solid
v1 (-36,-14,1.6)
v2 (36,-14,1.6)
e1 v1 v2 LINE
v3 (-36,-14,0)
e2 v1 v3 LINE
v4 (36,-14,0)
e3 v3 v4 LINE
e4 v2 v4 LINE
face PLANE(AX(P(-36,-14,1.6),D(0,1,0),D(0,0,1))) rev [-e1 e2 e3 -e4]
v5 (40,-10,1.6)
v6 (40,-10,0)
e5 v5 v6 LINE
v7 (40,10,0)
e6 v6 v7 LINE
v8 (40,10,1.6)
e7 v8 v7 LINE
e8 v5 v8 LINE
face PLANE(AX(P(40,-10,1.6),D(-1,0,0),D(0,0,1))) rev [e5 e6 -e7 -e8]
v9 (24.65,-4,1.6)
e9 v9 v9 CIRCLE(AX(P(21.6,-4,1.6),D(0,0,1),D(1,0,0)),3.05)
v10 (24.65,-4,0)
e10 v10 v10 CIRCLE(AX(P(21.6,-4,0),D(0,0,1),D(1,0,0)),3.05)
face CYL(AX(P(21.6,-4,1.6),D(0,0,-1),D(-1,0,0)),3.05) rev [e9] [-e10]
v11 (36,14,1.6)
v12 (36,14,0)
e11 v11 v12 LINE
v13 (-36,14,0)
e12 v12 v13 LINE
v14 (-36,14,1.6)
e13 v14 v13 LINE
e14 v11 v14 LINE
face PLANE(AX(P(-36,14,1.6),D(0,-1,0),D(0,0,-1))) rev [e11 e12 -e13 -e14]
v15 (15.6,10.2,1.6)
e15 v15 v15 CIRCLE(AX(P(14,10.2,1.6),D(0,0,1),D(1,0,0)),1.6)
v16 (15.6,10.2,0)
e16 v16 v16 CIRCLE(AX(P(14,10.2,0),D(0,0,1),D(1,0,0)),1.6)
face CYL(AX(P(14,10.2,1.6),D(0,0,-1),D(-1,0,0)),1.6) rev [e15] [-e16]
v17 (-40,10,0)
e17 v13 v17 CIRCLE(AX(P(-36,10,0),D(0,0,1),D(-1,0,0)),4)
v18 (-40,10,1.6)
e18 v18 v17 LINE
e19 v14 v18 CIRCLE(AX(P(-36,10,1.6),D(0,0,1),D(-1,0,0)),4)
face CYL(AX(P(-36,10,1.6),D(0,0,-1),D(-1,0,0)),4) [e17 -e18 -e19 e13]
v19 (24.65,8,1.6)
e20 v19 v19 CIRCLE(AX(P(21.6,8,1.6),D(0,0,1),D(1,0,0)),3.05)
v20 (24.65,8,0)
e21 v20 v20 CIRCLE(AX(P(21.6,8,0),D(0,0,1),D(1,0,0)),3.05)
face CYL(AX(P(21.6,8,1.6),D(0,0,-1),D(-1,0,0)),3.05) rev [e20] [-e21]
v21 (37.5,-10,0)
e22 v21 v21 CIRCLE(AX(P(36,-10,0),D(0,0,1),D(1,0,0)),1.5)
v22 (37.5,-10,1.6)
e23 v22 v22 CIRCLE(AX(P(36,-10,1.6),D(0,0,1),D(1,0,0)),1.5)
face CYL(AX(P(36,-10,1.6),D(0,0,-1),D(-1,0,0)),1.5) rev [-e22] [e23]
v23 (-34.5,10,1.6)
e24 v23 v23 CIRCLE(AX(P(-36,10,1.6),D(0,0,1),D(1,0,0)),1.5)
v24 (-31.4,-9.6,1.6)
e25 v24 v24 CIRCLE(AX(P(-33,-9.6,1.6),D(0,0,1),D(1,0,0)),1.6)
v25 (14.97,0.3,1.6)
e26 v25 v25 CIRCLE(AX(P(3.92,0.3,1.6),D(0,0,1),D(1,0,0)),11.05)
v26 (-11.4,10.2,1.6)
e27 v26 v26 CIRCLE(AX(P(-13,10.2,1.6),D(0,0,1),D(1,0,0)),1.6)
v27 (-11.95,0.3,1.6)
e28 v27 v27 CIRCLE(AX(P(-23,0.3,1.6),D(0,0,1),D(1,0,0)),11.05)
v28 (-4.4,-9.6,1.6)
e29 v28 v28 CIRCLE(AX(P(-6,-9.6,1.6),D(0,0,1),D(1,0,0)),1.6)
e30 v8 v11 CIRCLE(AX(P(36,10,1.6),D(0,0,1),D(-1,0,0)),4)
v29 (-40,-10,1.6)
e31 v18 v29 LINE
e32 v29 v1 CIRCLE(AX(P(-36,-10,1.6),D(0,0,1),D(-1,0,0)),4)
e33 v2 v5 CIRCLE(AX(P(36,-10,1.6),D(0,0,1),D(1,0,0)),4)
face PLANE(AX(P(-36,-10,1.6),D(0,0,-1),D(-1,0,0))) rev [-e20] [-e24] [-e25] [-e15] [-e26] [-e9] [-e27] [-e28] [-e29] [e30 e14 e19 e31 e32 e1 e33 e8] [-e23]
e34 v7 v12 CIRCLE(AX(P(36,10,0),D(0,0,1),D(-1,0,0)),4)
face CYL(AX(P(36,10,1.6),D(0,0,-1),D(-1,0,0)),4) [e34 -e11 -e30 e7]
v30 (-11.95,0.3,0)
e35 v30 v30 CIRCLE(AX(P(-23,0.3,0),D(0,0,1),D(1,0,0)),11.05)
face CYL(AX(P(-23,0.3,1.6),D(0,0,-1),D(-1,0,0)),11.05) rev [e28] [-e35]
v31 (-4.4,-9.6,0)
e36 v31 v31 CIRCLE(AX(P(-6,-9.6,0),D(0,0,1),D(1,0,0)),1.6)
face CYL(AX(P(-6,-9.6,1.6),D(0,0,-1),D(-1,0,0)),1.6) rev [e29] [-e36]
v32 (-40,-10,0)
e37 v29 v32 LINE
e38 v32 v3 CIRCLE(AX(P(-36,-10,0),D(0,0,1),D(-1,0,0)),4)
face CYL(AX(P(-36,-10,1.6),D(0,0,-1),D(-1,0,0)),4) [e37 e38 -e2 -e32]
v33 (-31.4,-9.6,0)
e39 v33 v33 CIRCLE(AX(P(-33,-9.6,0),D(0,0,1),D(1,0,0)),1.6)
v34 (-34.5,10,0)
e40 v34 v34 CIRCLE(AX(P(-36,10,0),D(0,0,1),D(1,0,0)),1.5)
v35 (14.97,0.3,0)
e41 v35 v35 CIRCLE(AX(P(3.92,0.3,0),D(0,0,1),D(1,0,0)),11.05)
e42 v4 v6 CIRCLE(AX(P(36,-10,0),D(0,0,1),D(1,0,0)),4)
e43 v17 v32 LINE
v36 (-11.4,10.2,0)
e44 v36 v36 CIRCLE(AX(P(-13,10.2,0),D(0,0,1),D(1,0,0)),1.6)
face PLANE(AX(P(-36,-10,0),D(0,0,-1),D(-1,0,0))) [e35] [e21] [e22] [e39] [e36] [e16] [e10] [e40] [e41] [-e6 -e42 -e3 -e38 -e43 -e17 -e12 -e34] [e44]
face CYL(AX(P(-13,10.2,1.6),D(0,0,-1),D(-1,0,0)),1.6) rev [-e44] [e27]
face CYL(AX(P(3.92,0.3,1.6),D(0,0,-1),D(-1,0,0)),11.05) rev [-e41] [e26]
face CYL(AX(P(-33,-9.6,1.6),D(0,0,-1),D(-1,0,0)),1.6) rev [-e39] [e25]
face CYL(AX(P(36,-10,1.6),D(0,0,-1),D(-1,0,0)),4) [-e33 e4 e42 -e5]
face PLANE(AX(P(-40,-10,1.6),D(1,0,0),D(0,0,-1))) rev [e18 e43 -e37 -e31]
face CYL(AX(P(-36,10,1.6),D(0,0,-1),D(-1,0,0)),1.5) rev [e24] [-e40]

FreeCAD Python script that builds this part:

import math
import FreeCAD as App
import Part
import Sketcher

V = App.Vector

doc = App.newDocument("Part")
body = doc.addObject("PartDesign::Body", "Body")

# Sketch on XY plane
sketch1 = body.newObject("Sketcher::SketchObject", "Sketch")
sketch1.AttachmentSupport = (doc.getObject("XY_Plane"), [""])
sketch1.MapMode = "FlatFace"
sketch1.addGeometry(Part.LineSegment(V(-36, -14, 0), V(36, -14, 0)), False)
sketch1.addGeometry(Part.ArcOfCircle(Part.Circle(V(36, -10, 0), V(0, 0, 1), 4), math.radians(-90), math.radians(0)), False)
sketch1.addGeometry(Part.LineSegment(V(40, -10, 0), V(40, 10, 0)), False)
sketch1.addGeometry(Part.ArcOfCircle(Part.Circle(V(36, 10, 0), V(0, 0, 1), 4), math.radians(0), math.radians(90)), False)
sketch1.addGeometry(Part.LineSegment(V(36, 14, 0), V(-36, 14, 0)), False)
sketch1.addGeometry(Part.ArcOfCircle(Part.Circle(V(-36, 10, 0), V(0, 0, 1), 4), math.radians(90), math.radians(180)), False)
sketch1.addGeometry(Part.LineSegment(V(-40, 10, 0), V(-40, -10, 0)), False)
sketch1.addGeometry(Part.ArcOfCircle(Part.Circle(V(-36, -10, 0), V(0, 0, 1), 4), math.radians(180), math.radians(270)), False)
sketch1.addGeometry(Part.Circle(V(-33, -9.6, 0), V(0, 0, 1), 1.6), False)
sketch1.addGeometry(Part.Circle(V(-6, -9.6, 0), V(0, 0, 1), 1.6), False)
sketch1.addGeometry(Part.Circle(V(36, -10, 0), V(0, 0, 1), 1.5), False)
sketch1.addGeometry(Part.Circle(V(21.6, -4, 0), V(0, 0, 1), 3), False)
sketch1.addGeometry(Part.Circle(V(-23, 0.3, 0), V(0, 0, 1), 11.1), False)
sketch1.addGeometry(Part.Circle(V(-36, 10, 0), V(0, 0, 1), 1.5), False)
sketch1.addGeometry(Part.Circle(V(-13, 10.2, 0), V(0, 0, 1), 1.6), False)
sketch1.addGeometry(Part.Circle(V(3.9, 0.3, 0), V(0, 0, 1), 11.1), False)
sketch1.addGeometry(Part.Circle(V(14, 10.2, 0), V(0, 0, 1), 1.6), False)
sketch1.addGeometry(Part.Circle(V(21.6, 8, 0), V(0, 0, 1), 3), False)
sketch1.addConstraint(Sketcher.Constraint("Tangent", 0, 2, 1, 1))
sketch1.addConstraint(Sketcher.Constraint("Tangent", 1, 2, 2, 1))
sketch1.addConstraint(Sketcher.Constraint("Tangent", 2, 2, 3, 1))
sketch1.addConstraint(Sketcher.Constraint("Tangent", 3, 2, 4, 1))
sketch1.addConstraint(Sketcher.Constraint("Tangent", 4, 2, 5, 1))
sketch1.addConstraint(Sketcher.Constraint("Tangent", 5, 2, 6, 1))
sketch1.addConstraint(Sketcher.Constraint("Tangent", 6, 2, 7, 1))
sketch1.addConstraint(Sketcher.Constraint("Tangent", 7, 2, 0, 1))
sketch1.addConstraint(Sketcher.Constraint("Horizontal", 0))
sketch1.addConstraint(Sketcher.Constraint("Vertical", 2))
sketch1.addConstraint(Sketcher.Constraint("Horizontal", 4))
sketch1.addConstraint(Sketcher.Constraint("Vertical", 6))
sketch1.addConstraint(Sketcher.Constraint("Coincident", 10, 3, 1, 3))
sketch1.addConstraint(Sketcher.Constraint("Coincident", 13, 3, 5, 3))
sketch1.addConstraint(Sketcher.Constraint("Equal", 1, 3))
sketch1.addConstraint(Sketcher.Constraint("Equal", 3, 5))
sketch1.addConstraint(Sketcher.Constraint("Equal", 5, 7))
sketch1.addConstraint(Sketcher.Constraint("Equal", 8, 9))
sketch1.addConstraint(Sketcher.Constraint("Equal", 10, 13))
sketch1.addConstraint(Sketcher.Constraint("Equal", 9, 14))
sketch1.addConstraint(Sketcher.Constraint("Equal", 12, 15))
sketch1.addConstraint(Sketcher.Constraint("Equal", 14, 16))
sketch1.addConstraint(Sketcher.Constraint("Equal", 11, 17))
sketch1.addConstraint(Sketcher.Constraint("Symmetric", 1, 3, 5, 3, -1, 1))
sketch1.addConstraint(Sketcher.Constraint("Horizontal", 8, 3, 9, 3))
sketch1.addConstraint(Sketcher.Constraint("Horizontal", 12, 3, 15, 3))
sketch1.addConstraint(Sketcher.Constraint("Horizontal", 14, 3, 16, 3))
sketch1.addConstraint(Sketcher.Constraint("Vertical", 11, 3, 17, 3))
sketch1.addConstraint(Sketcher.Constraint("Diameter", 10, 3.0))
sketch1.addConstraint(Sketcher.Constraint("Radius", 1, 4.0))
sketch1.addConstraint(Sketcher.Constraint("Diameter", 8, 3.2))
sketch1.addConstraint(Sketcher.Constraint("Diameter", 11, 6.1))
sketch1.addConstraint(Sketcher.Constraint("Diameter", 12, 22.1))
sketch1.addConstraint(Sketcher.Constraint("DistanceX", 0, 1, 0, 2, 72.0))
sketch1.addConstraint(Sketcher.Constraint("DistanceY", 2, 1, 2, 2, 20.0))
sketch1.addConstraint(Sketcher.Constraint("DistanceX", 8, 3, -1, 1, 33.0))
sketch1.addConstraint(Sketcher.Constraint("DistanceX", 9, 3, -1, 1, 6.0))
sketch1.addConstraint(Sketcher.Constraint("DistanceY", 11, 3, -1, 1, 4.0))
sketch1.addConstraint(Sketcher.Constraint("DistanceX", 12, 3, -1, 1, 23.0))
sketch1.addConstraint(Sketcher.Constraint("DistanceX", 14, 3, -1, 1, 13.0))
sketch1.addConstraint(Sketcher.Constraint("DistanceX", -1, 1, 16, 3, 14.0))
sketch1.addConstraint(Sketcher.Constraint("DistanceY", -1, 1, 17, 3, 8.0))
sketch1.addConstraint(Sketcher.Constraint("DistanceY", 8, 3, -1, 1, 9.6))
sketch1.addConstraint(Sketcher.Constraint("DistanceX", -1, 1, 11, 3, 21.6))
sketch1.addConstraint(Sketcher.Constraint("DistanceY", -1, 1, 12, 3, 0.3))
sketch1.addConstraint(Sketcher.Constraint("DistanceY", -1, 1, 14, 3, 10.2))
sketch1.addConstraint(Sketcher.Constraint("DistanceX", -1, 1, 15, 3, 3.92))
pad1 = body.newObject("PartDesign::Pad", "Pad")
pad1.Profile = sketch1
pad1.Length = 1.6

doc.recompute()
